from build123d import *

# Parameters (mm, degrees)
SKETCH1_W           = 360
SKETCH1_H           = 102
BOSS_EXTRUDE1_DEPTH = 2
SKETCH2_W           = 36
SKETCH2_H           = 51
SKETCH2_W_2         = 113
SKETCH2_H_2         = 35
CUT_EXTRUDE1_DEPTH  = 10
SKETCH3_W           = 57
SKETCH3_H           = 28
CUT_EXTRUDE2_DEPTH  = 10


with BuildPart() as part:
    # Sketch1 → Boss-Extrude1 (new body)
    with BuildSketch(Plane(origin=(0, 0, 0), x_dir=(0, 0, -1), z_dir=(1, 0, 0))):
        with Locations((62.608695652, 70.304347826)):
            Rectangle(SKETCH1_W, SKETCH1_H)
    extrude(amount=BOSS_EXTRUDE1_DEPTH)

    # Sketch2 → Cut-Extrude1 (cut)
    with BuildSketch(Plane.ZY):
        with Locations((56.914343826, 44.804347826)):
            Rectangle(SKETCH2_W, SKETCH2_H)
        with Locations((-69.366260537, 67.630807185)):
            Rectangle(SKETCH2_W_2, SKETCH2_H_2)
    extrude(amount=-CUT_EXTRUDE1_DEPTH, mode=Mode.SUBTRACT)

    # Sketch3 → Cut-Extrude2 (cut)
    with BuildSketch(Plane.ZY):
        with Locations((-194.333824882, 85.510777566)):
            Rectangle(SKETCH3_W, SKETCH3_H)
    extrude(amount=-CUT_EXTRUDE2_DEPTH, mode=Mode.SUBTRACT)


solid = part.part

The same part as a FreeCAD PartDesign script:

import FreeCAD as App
import Part
import Sketcher
Q = App.Units.Quantity

doc = App.newDocument("Part")
body = doc.addObject("PartDesign::Body", "Body")

# Sketch on YZ plane
sketch1 = body.newObject("Sketcher::SketchObject", "Sketch")
sketch1.AttachmentSupport = (doc.getObject("YZ_Plane"), [""])
sketch1.MapMode = "FlatFace"
sketch1.addGeometry([
    Part.LineSegment(App.Vector(121.304348, 117.391304, 0), App.Vector(19.304348, 117.391304, 0)),
    Part.LineSegment(App.Vector(19.304348, 117.391304, 0), App.Vector(19.304348, -242.608696, 0)),
    Part.LineSegment(App.Vector(19.304348, -242.608696, 0), App.Vector(121.304348, -242.608696, 0)),
    Part.LineSegment(App.Vector(121.304348, -242.608696, 0), App.Vector(121.304348, 117.391304, 0)),
], False)
sketch1.addConstraint([
    Sketcher.Constraint("Coincident", 0, 2, 1, 1),
    Sketcher.Constraint("Coincident", 1, 2, 2, 1),
    Sketcher.Constraint("Coincident", 2, 2, 3, 1),
    Sketcher.Constraint("Coincident", 3, 2, 0, 1),
    Sketcher.Constraint("Horizontal", 0),
    Sketcher.Constraint("Vertical", 1),
    Sketcher.Constraint("Horizontal", 2),
    Sketcher.Constraint("Vertical", 3),
    Sketcher.Constraint("DistanceX", 0, 2, 0, 1, Q("102 mm")),
    Sketcher.Constraint("DistanceY", 1, 2, 1, 1, Q("360 mm")),
    Sketcher.Constraint("DistanceX", -1, 1, 0, 2, Q("19.304348 mm")),
    Sketcher.Constraint("DistanceY", -1, 1, 0, 2, Q("117.391304 mm")),
])
pad1 = body.newObject("PartDesign::Pad", "Pad")
pad1.Profile = sketch1
pad1.Length = 2

# Sketch on YZ plane
sketch2 = body.newObject("Sketcher::SketchObject", "Sketch001")
sketch2.AttachmentSupport = (doc.getObject("YZ_Plane"), [""])
sketch2.MapMode = "FlatFace"
sketch2.addGeometry([
    Part.LineSegment(App.Vector(70.304348, 38.914344, 0), App.Vector(19.304348, 38.914344, 0)),  # 0
    Part.LineSegment(App.Vector(19.304348, 38.914344, 0), App.Vector(19.304348, 74.914344, 0)),  # 1
    Part.LineSegment(App.Vector(19.304348, 74.914344, 0), App.Vector(70.304348, 74.914344, 0)),  # 2
    Part.LineSegment(App.Vector(70.304348, 74.914344, 0), App.Vector(70.304348, 38.914344, 0)),  # 3
    Part.LineSegment(App.Vector(85.130807, -125.866261, 0), App.Vector(50.130807, -125.866261, 0)),  # 4
    Part.LineSegment(App.Vector(50.130807, -125.866261, 0), App.Vector(50.130807, -12.866261, 0)),  # 5
    Part.LineSegment(App.Vector(50.130807, -12.866261, 0), App.Vector(85.130807, -12.866261, 0)),  # 6
    Part.LineSegment(App.Vector(85.130807, -12.866261, 0), App.Vector(85.130807, -125.866261, 0)),  # 7
], False)
sketch2.addConstraint([
    Sketcher.Constraint("Coincident", 0, 2, 1, 1),
    Sketcher.Constraint("Coincident", 1, 2, 2, 1),
    Sketcher.Constraint("Coincident", 2, 2, 3, 1),
    Sketcher.Constraint("Coincident", 3, 2, 0, 1),
    Sketcher.Constraint("Coincident", 4, 2, 5, 1),
    Sketcher.Constraint("Coincident", 5, 2, 6, 1),
    Sketcher.Constraint("Coincident", 6, 2, 7, 1),
    Sketcher.Constraint("Coincident", 7, 2, 4, 1),
    Sketcher.Constraint("Horizontal", 0),
    Sketcher.Constraint("Vertical", 1),
    Sketcher.Constraint("Horizontal", 2),
    Sketcher.Constraint("Vertical", 3),
    Sketcher.Constraint("Horizontal", 4),
    Sketcher.Constraint("Vertical", 5),
    Sketcher.Constraint("Horizontal", 6),
    Sketcher.Constraint("Vertical", 7),
    Sketcher.Constraint("DistanceX", 0, 2, 0, 1, Q("51 mm")),
    Sketcher.Constraint("DistanceX", 4, 2, 4, 1, Q("35 mm")),
    Sketcher.Constraint("DistanceY", 1, 1, 1, 2, Q("36 mm")),
    Sketcher.Constraint("DistanceY", 5, 1, 5, 2, Q("113 mm")),
    Sketcher.Constraint("DistanceY", 4, 2, -1, 1, Q("125.866261 mm")),
    Sketcher.Constraint("DistanceX", 4, 2, 3, 2, Q("20.173541 mm")),
    Sketcher.Constraint("DistanceX", -1, 1, 0, 2, Q("19.304348 mm")),
    Sketcher.Constraint("DistanceY", -1, 1, 0, 2, Q("38.914344 mm")),
])
pocket1 = body.newObject("PartDesign::Pocket", "Pocket")
pocket1.Profile = sketch2
pocket1.Length = 10
pocket1.Reversed = True

# Sketch on YZ plane
sketch3 = body.newObject("Sketcher::SketchObject", "Sketch002")
sketch3.AttachmentSupport = (doc.getObject("YZ_Plane"), [""])
sketch3.MapMode = "FlatFace"
sketch3.addGeometry([
    Part.LineSegment(App.Vector(99.510778, -222.833825, 0), App.Vector(71.510778, -222.833825, 0)),
    Part.LineSegment(App.Vector(71.510778, -222.833825, 0), App.Vector(71.510778, -165.833825, 0)),
    Part.LineSegment(App.Vector(71.510778, -165.833825, 0), App.Vector(99.510778, -165.833825, 0)),
    Part.LineSegment(App.Vector(99.510778, -165.833825, 0), App.Vector(99.510778, -222.833825, 0)),
], False)
sketch3.addConstraint([
    Sketcher.Constraint("Coincident", 0, 2, 1, 1),
    Sketcher.Constraint("Coincident", 1, 2, 2, 1),
    Sketcher.Constraint("Coincident", 2, 2, 3, 1),
    Sketcher.Constraint("Coincident", 3, 2, 0, 1),
    Sketcher.Constraint("Horizontal", 0),
    Sketcher.Constraint("Vertical", 1),
    Sketcher.Constraint("Horizontal", 2),
    Sketcher.Constraint("Vertical", 3),
    Sketcher.Constraint("DistanceX", 0, 2, 0, 1, Q("28 mm")),
    Sketcher.Constraint("DistanceY", 1, 1, 1, 2, Q("57 mm")),
    Sketcher.Constraint("DistanceX", -1, 1, 0, 2, Q("71.510778 mm")),
    Sketcher.Constraint("DistanceY", 0, 2, -1, 1, Q("222.833825 mm")),
])
pocket2 = body.newObject("PartDesign::Pocket", "Pocket001")
pocket2.Profile = sketch3
pocket2.Length = 10
pocket2.Reversed = True

doc.recompute()
